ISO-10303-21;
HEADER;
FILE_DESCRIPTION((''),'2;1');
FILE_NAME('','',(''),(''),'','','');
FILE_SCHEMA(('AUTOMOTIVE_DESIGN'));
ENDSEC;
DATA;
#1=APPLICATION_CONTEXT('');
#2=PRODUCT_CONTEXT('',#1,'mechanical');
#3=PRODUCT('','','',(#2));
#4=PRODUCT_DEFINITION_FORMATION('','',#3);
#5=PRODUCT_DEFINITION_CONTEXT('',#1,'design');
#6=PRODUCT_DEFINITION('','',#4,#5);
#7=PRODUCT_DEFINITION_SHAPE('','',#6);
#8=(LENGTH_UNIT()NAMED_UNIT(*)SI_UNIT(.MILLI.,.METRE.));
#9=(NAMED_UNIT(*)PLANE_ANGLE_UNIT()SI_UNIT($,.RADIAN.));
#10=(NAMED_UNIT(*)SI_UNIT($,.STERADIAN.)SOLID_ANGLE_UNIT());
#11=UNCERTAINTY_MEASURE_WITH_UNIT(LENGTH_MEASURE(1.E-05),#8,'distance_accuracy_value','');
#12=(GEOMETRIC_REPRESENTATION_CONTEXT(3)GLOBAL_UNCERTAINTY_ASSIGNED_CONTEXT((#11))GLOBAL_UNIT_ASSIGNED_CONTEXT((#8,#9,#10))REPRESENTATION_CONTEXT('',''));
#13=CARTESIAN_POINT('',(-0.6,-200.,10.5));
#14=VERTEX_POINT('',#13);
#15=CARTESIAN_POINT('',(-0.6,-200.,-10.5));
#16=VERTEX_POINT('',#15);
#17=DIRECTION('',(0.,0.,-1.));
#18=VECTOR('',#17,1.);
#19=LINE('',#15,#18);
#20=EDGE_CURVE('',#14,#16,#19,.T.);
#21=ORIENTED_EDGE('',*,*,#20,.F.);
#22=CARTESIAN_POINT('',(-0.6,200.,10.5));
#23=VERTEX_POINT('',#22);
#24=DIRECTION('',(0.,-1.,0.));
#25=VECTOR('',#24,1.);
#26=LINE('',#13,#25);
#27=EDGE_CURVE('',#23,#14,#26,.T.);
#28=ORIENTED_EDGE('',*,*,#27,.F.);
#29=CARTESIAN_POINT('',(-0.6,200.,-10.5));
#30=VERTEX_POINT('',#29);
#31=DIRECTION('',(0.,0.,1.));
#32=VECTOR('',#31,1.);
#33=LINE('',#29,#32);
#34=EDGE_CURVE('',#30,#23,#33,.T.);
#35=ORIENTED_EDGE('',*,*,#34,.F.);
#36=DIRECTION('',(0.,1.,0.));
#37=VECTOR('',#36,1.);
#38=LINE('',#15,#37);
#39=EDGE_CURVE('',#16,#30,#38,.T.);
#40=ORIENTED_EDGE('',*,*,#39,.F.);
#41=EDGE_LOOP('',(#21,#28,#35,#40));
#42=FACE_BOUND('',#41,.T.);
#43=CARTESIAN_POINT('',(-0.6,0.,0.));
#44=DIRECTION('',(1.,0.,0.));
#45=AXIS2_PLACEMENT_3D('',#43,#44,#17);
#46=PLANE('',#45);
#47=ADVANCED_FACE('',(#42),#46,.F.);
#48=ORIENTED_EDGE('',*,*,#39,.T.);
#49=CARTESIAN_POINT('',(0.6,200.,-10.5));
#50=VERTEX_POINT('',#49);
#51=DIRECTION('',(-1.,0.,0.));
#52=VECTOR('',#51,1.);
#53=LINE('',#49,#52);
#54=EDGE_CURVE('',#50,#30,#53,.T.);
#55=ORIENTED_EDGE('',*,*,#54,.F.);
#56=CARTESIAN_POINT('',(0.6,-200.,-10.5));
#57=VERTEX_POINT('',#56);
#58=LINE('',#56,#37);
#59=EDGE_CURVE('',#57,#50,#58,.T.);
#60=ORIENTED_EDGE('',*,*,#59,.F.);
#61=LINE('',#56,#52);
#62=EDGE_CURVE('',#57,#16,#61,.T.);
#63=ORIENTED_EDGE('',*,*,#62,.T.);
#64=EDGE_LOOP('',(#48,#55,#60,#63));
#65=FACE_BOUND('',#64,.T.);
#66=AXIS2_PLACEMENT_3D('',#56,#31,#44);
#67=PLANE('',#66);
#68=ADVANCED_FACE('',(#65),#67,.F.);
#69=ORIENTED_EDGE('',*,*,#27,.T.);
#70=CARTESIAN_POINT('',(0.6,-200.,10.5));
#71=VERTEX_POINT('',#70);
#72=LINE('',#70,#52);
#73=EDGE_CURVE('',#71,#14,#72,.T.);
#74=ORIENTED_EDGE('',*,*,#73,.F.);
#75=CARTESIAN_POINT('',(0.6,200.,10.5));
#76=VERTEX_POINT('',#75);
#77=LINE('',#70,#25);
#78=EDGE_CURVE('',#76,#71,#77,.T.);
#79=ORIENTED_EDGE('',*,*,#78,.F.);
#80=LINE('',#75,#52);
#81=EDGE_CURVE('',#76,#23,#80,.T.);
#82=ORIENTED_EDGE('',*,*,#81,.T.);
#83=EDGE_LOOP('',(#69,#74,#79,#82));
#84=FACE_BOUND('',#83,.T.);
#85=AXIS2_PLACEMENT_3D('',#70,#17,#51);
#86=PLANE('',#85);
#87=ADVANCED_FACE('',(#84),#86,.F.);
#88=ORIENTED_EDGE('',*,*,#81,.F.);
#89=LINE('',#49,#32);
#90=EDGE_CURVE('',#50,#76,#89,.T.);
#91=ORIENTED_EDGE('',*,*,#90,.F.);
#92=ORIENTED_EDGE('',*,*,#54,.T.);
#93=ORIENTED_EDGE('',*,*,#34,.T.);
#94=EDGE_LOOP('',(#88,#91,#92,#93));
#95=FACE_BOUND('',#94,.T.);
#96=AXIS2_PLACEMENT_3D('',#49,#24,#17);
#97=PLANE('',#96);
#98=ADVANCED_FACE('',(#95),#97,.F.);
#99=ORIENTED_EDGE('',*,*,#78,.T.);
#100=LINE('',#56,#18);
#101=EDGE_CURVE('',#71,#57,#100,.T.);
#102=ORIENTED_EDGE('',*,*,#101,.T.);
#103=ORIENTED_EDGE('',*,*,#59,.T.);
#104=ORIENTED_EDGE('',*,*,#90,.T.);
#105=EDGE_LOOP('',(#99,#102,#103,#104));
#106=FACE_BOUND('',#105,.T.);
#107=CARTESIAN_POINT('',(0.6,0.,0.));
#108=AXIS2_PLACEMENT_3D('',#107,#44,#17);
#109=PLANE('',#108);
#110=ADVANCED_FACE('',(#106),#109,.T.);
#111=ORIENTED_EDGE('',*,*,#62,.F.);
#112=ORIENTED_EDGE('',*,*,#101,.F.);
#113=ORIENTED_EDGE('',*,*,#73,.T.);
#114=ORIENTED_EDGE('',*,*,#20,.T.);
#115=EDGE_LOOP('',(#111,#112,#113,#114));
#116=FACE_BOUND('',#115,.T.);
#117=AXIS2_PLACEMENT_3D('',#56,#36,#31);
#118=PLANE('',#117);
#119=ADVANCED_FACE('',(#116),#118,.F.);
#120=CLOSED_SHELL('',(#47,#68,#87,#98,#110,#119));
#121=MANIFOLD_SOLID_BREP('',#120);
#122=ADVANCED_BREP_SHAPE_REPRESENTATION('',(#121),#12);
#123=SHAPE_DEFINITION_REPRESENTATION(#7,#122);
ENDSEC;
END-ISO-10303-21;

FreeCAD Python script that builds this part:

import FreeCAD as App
import Part
import Sketcher

V = App.Vector
Q = App.Units.Quantity


def add_polygon(sketch, points):
    """Adds a closed chain of lines whose ends are joined by coincident constraints."""
    first, n = sketch.GeometryCount, len(points)
    for a, b in zip(points, points[1:] + points[:1]):
        sketch.addGeometry(Part.LineSegment(App.Vector(*a, 0), App.Vector(*b, 0)), False)
    for i in range(n):
        sketch.addConstraint(Sketcher.Constraint("Coincident", first + i, 2, first + (i + 1) % n, 1))

doc = App.newDocument("Part")
body = doc.addObject("PartDesign::Body", "Body")

sketch1 = body.newObject("Sketcher::SketchObject", "Sketch")
sketch1.AttachmentSupport = (doc.getObject("YZ_Plane"), [""])
sketch1.MapMode = "FlatFace"
add_polygon(sketch1, [(200, 10.5), (-200, 10.5), (-200, -10.5), (200, -10.5)])
sketch1.addConstraint([
    Sketcher.Constraint("Horizontal", 0),
    Sketcher.Constraint("Vertical", 1),
    Sketcher.Constraint("Horizontal", 2),
    Sketcher.Constraint("Vertical", 3),
    Sketcher.Constraint("Symmetric", 0, 2, 2, 2, -1, 1),
    Sketcher.Constraint("DistanceX", 0, 2, 0, 1, Q("400 mm")),
    Sketcher.Constraint("DistanceY", 1, 2, 1, 1, Q("21 mm")),
])
pad1 = body.newObject("PartDesign::Pad", "Pad")
pad1.Profile = sketch1
pad1.Length = 1.2
pad1.Midplane = True

doc.recompute()
